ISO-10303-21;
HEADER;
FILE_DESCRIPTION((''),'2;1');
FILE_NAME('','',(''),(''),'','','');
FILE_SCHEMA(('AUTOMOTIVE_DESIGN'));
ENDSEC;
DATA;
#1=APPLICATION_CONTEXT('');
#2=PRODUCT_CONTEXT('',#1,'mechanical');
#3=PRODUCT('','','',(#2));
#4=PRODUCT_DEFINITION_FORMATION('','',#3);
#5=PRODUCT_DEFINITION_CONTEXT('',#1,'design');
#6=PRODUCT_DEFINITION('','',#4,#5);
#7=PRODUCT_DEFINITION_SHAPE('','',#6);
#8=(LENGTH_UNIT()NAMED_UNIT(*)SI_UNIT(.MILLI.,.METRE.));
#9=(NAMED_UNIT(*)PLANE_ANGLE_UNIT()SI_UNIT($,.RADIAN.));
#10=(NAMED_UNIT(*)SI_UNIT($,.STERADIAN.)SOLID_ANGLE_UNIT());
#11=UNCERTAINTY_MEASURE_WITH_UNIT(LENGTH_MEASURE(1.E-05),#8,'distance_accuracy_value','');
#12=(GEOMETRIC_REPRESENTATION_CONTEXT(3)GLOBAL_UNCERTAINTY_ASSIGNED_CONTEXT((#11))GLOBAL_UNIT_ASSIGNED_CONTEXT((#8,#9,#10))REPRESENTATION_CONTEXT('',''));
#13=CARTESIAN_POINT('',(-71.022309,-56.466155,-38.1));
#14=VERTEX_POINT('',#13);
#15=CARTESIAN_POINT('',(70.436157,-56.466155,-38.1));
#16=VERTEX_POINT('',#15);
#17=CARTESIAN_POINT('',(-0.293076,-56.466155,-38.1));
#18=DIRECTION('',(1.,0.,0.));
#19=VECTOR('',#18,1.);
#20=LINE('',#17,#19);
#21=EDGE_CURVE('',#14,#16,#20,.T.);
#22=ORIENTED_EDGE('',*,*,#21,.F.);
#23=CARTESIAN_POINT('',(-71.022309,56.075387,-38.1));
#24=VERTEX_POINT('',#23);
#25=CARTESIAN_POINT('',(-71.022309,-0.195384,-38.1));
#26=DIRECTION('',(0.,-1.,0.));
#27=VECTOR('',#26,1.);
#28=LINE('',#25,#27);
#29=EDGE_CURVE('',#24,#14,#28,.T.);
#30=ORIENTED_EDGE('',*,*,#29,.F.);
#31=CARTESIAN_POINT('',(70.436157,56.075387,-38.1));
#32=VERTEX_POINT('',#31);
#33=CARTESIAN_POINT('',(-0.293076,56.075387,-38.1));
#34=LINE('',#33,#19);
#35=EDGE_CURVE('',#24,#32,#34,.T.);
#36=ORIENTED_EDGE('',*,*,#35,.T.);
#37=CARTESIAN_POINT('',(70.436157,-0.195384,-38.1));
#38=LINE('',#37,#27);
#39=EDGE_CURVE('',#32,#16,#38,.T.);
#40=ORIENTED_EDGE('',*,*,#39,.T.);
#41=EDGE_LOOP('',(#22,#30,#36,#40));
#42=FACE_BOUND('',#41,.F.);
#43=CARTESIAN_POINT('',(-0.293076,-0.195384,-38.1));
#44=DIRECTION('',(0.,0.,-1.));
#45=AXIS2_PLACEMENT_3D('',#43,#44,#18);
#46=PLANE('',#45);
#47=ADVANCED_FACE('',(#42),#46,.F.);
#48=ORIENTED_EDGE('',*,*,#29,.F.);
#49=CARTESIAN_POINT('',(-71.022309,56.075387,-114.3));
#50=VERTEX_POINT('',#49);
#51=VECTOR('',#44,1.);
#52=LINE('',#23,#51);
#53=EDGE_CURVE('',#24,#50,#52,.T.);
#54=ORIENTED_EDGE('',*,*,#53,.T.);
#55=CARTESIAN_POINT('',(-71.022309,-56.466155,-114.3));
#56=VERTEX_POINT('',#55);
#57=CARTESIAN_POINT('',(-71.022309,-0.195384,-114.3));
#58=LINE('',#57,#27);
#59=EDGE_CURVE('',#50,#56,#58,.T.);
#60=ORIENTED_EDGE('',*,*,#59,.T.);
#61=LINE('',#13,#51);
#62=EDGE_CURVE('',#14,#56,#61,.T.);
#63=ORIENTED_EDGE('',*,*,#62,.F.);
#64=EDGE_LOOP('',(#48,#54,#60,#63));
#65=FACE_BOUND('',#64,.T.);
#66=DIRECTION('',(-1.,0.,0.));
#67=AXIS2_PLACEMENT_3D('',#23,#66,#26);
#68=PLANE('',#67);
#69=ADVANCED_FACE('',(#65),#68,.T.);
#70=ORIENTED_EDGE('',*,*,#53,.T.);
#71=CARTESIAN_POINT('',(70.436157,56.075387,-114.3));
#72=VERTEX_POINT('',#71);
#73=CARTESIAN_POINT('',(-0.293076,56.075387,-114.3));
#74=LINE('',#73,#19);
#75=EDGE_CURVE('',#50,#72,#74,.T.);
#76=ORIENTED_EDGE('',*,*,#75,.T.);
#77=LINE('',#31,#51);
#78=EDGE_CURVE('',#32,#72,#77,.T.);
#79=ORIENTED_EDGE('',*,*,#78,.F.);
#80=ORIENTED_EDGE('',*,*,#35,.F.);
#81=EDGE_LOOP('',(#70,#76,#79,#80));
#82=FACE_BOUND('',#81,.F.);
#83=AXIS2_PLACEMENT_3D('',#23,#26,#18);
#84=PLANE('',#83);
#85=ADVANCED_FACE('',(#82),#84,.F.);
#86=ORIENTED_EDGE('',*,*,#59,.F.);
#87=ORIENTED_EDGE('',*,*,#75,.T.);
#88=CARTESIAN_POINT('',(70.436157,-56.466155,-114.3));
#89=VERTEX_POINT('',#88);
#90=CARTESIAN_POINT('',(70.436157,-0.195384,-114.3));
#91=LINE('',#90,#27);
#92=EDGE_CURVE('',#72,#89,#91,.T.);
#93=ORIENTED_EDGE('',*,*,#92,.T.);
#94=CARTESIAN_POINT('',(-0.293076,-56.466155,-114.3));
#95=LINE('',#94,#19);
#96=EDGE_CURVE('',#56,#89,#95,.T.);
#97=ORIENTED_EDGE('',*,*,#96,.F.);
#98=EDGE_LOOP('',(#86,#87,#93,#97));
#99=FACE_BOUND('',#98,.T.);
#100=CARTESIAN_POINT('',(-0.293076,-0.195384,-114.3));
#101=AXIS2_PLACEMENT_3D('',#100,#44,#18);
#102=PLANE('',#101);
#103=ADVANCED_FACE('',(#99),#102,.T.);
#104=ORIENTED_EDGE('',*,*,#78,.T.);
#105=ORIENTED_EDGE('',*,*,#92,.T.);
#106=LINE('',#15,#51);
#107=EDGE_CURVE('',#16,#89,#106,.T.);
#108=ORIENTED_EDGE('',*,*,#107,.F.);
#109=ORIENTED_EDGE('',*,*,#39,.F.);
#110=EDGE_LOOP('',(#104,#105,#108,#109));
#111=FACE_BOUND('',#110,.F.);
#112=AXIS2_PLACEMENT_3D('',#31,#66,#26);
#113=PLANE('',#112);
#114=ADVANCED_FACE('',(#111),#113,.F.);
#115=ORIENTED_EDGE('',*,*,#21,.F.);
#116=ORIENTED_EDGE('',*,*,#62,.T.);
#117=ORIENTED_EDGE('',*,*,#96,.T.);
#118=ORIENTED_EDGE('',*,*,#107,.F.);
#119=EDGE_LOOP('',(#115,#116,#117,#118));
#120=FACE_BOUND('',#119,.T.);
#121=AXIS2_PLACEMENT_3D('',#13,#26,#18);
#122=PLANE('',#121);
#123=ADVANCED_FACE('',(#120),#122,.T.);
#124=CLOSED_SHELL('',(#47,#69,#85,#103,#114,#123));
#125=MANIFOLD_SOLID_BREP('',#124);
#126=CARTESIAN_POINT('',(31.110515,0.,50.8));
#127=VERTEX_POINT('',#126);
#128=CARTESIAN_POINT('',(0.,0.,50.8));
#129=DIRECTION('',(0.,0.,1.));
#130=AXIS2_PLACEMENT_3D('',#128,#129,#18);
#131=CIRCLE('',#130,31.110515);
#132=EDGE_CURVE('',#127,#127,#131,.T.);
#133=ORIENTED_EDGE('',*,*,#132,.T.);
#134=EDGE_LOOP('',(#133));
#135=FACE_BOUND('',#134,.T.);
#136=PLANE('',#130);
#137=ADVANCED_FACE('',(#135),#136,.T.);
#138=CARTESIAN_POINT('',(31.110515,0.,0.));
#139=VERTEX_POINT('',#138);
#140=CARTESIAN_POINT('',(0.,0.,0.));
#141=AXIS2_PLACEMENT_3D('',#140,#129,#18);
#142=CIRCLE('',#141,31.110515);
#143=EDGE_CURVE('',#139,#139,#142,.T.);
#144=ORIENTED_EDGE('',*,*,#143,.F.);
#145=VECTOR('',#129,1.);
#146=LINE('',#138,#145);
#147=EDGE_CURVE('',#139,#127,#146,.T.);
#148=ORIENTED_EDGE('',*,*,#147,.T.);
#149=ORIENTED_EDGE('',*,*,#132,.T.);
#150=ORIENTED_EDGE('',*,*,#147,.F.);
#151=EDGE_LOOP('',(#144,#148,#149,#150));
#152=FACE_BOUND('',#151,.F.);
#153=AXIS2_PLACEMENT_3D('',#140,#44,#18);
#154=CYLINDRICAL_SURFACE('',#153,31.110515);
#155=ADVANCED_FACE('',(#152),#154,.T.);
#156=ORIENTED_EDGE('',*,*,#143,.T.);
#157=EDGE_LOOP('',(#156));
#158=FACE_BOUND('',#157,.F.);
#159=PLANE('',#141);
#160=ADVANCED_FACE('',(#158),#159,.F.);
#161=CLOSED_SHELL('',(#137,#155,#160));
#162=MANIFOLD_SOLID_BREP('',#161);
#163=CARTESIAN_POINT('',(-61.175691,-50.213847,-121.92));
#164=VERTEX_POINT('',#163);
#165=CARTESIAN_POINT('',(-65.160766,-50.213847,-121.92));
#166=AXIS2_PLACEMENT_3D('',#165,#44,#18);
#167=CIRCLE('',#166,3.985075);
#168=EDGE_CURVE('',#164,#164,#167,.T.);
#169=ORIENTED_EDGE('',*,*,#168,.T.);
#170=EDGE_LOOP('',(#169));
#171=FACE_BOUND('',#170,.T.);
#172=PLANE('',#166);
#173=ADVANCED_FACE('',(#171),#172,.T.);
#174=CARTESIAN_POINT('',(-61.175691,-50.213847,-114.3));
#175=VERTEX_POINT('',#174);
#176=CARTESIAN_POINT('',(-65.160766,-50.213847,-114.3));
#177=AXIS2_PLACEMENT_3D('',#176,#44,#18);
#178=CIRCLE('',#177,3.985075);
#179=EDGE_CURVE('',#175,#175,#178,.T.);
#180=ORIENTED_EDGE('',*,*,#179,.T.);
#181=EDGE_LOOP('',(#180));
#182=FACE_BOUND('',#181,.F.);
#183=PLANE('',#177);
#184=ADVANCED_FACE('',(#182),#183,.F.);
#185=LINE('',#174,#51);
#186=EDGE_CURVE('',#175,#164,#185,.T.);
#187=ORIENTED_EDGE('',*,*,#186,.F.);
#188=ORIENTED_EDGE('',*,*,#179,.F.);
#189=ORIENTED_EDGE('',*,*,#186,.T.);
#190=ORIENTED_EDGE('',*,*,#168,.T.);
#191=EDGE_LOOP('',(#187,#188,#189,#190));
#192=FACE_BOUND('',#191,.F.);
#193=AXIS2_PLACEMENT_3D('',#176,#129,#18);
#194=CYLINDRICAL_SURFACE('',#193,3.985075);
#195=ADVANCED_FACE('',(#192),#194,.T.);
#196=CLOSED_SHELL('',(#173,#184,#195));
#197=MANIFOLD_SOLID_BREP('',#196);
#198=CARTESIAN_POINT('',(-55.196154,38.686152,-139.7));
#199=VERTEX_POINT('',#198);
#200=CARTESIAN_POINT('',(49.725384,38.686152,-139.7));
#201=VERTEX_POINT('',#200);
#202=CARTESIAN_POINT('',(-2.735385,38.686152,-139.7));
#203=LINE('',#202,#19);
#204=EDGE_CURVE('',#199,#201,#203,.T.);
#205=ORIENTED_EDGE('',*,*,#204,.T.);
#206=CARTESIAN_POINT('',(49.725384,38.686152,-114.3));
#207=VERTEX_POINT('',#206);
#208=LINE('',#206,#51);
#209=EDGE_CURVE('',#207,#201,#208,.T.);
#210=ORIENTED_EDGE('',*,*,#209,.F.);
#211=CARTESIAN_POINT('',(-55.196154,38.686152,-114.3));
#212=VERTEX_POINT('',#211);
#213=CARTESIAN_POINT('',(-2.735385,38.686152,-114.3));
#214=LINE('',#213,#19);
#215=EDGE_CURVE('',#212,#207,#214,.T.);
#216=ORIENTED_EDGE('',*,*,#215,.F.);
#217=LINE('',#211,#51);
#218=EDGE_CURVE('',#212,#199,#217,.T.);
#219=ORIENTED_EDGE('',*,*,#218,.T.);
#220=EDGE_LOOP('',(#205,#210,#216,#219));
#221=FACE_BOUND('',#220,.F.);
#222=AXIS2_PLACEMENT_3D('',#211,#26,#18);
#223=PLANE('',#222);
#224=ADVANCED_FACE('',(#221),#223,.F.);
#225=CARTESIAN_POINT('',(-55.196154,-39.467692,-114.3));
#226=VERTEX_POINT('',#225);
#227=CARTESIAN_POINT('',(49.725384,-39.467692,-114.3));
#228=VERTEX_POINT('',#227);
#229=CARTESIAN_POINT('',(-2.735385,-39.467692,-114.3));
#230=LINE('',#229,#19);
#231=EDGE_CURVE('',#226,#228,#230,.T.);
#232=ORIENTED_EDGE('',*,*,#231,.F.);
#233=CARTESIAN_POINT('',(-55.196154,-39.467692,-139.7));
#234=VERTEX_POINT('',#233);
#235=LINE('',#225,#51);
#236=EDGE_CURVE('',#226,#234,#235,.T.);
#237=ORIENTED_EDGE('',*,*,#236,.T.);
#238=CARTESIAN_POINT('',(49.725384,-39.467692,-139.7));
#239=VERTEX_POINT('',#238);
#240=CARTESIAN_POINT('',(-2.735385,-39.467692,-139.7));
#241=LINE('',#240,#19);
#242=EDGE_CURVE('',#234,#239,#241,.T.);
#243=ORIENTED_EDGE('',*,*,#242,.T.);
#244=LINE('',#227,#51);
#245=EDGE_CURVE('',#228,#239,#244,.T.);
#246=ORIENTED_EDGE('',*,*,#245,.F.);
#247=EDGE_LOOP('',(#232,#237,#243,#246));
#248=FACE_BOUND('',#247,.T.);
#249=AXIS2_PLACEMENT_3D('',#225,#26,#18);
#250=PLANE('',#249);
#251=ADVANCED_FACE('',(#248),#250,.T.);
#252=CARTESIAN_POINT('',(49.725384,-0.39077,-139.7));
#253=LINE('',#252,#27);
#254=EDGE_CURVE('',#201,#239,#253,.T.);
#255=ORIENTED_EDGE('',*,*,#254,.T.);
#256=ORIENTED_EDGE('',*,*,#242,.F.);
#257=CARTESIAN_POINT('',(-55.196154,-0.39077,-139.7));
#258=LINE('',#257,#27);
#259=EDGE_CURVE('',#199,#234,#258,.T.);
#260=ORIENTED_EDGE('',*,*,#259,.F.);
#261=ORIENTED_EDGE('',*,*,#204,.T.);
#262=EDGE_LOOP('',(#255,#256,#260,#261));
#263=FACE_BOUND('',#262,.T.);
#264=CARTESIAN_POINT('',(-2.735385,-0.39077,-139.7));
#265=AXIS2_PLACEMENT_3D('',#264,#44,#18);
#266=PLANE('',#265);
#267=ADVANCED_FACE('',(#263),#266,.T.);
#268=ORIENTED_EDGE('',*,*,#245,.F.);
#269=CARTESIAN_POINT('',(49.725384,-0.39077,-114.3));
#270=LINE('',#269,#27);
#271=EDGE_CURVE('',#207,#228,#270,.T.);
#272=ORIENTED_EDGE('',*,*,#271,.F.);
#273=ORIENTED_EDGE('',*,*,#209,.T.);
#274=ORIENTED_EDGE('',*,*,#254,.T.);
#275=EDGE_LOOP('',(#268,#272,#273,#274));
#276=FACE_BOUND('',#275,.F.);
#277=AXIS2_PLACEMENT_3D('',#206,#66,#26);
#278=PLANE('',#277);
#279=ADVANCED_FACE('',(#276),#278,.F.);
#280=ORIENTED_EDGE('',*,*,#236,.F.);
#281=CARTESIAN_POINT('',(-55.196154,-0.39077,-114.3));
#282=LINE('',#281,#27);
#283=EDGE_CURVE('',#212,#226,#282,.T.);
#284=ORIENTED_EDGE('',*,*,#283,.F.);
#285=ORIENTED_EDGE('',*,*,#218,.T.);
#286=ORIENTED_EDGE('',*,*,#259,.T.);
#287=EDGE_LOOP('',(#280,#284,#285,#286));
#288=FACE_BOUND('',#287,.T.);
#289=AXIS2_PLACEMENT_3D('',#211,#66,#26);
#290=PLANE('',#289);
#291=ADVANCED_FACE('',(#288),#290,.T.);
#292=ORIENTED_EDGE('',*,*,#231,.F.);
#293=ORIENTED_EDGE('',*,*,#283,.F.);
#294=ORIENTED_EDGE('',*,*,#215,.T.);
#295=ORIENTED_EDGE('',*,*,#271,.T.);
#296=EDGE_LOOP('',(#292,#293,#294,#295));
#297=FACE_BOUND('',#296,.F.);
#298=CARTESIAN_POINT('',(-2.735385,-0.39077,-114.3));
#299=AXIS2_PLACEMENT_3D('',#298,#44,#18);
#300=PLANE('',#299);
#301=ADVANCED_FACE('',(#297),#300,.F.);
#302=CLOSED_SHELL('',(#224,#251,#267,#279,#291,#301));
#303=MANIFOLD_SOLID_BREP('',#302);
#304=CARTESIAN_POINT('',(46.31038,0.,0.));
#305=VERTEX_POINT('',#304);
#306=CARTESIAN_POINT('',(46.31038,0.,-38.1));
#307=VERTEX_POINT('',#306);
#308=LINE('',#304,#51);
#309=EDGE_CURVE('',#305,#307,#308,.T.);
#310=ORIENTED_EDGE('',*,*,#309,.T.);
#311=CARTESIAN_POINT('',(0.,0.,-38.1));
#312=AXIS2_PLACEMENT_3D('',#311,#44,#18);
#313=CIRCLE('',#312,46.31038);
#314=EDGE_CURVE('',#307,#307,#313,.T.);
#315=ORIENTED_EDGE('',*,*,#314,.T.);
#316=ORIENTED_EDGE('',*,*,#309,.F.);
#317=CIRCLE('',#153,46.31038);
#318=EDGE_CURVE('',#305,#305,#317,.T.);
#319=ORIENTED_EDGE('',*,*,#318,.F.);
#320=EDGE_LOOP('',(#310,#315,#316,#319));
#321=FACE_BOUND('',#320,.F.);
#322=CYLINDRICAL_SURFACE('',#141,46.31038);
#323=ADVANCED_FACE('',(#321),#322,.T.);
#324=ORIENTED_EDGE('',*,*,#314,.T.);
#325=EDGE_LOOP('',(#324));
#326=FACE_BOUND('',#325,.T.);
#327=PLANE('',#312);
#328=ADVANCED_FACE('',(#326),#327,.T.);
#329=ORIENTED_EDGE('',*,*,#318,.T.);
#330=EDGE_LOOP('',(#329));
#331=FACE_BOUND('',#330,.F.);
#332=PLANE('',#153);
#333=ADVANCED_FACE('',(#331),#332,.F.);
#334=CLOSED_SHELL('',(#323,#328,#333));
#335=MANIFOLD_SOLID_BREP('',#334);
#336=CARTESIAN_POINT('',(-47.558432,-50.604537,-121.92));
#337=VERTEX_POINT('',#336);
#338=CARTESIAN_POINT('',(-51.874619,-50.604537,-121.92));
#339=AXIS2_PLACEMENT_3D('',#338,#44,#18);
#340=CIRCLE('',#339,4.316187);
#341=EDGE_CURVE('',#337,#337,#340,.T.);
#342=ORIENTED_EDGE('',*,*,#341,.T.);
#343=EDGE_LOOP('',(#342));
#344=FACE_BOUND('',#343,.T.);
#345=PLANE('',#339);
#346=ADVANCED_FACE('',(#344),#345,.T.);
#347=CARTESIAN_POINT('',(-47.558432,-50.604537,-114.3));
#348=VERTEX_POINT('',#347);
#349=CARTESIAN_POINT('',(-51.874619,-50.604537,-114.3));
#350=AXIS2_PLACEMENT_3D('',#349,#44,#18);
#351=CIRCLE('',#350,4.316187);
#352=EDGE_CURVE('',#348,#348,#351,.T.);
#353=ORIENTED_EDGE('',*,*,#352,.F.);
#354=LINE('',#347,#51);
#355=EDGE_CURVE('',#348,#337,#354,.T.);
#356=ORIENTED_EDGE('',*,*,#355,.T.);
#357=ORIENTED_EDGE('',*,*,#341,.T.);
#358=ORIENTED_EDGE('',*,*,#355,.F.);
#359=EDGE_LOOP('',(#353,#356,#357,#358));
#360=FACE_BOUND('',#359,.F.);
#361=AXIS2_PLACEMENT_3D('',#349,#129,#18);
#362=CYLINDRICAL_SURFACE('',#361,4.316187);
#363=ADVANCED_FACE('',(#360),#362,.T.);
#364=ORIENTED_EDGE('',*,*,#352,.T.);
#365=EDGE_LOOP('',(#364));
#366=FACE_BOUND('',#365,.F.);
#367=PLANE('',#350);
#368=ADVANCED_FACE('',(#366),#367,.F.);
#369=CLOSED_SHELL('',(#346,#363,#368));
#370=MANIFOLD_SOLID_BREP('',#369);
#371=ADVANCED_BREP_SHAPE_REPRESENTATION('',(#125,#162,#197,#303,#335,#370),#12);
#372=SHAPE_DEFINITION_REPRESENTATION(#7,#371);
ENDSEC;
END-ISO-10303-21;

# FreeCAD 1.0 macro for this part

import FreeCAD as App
import Part
import Sketcher
from FreeCAD import Vector
Q = App.Units.Quantity


def add_polygon(sketch, points):
    """Adds a closed chain of lines whose ends are joined by coincident constraints."""
    first, n = sketch.GeometryCount, len(points)
    for a, b in zip(points, points[1:] + points[:1]):
        sketch.addGeometry(Part.LineSegment(App.Vector(*a, 0), App.Vector(*b, 0)), False)
    for i in range(n):
        sketch.addConstraint(Sketcher.Constraint("Coincident", first + i, 2, first + (i + 1) % n, 1))

doc = App.newDocument("Part")
body = doc.addObject("PartDesign::Body", "Body")

sketch1 = body.newObject("Sketcher::SketchObject", "Sketch")
sketch1.AttachmentSupport = (doc.getObject("XY_Plane"), [""])
sketch1.MapMode = "FlatFace"
sketch1.addGeometry(Part.Circle(Vector(0, 0, 0), Vector(0, 0, 1), 31.110515), False)
sketch1.addConstraint(Sketcher.Constraint("Coincident", 0, 3, -1, 1))
sketch1.addConstraint(Sketcher.Constraint("Diameter", 0, 62.22103))
pad1 = body.newObject("PartDesign::Pad", "Pad")
pad1.Profile = sketch1
pad1.Length = Q("2 in")
body2 = doc.addObject("PartDesign::Body", "Body001")

sketch2 = body2.newObject("Sketcher::SketchObject", "Sketch001")
sketch2.AttachmentSupport = (doc.getObject("XY_Plane001"), [""])
sketch2.MapMode = "FlatFace"
sketch2.addGeometry(Part.Circle(Vector(0, 0, 0), Vector(0, 0, 1), 46.31038), False)
sketch2.addConstraint(Sketcher.Constraint("Coincident", 0, 3, -1, 1))
sketch2.addConstraint(Sketcher.Constraint("Diameter", 0, 92.62076))
pad2 = body2.newObject("PartDesign::Pad", "Pad001")
pad2.Profile = sketch2
pad2.Length = Q("1.5 in")
pad2.Reversed = True
body3 = doc.addObject("PartDesign::Body", "Body002")

sketch3 = body3.newObject("Sketcher::SketchObject", "Sketch002")
sketch3.AttachmentSupport = (doc.getObject("XY_Plane002"), [""])
sketch3.MapMode = "FlatFace"
sketch3.AttachmentOffset = App.Placement(Vector(0, 0, -1.5 * 25.4), App.Rotation())
add_polygon(sketch3, [(-71.022309, -56.466155), (-71.022309, 56.075387), (70.436157, 56.075387), (70.436157, -56.466155)])
sketch3.addConstraint(Sketcher.Constraint("Vertical", 0))
sketch3.addConstraint(Sketcher.Constraint("Horizontal", 1))
sketch3.addConstraint(Sketcher.Constraint("Vertical", 2))
sketch3.addConstraint(Sketcher.Constraint("Horizontal", 3))
sketch3.addConstraint(Sketcher.Constraint("DistanceY", 0, 1, 0, 2, 112.541542))
sketch3.addConstraint(Sketcher.Constraint("DistanceX", 1, 1, 1, 2, 141.458466))
sketch3.addConstraint(Sketcher.Constraint("DistanceX", 0, 2, -1, 1, 71.022309))
sketch3.addConstraint(Sketcher.Constraint("DistanceY", -1, 1, 0, 2, 56.075387))
pad3 = body3.newObject("PartDesign::Pad", "Pad002")
pad3.Profile = sketch3
pad3.Length = Q("3 in")
pad3.Reversed = True
body4 = doc.addObject("PartDesign::Body", "Body003")

sketch4 = body4.newObject("Sketcher::SketchObject", "Sketch003")
sketch4.AttachmentSupport = (doc.getObject("XY_Plane003"), [""])
sketch4.MapMode = "FlatFace"
sketch4.AttachmentOffset = App.Placement(Vector(0, 0, -4.5 * 25.4), App.Rotation())
sketch4.addGeometry(Part.Circle(Vector(-65.160766, -50.213847, 0), Vector(0, 0, 1), 3.985075), False)
sketch4.addConstraint(Sketcher.Constraint("Diameter", 0, 7.97015))
sketch4.addConstraint(Sketcher.Constraint("DistanceX", 0, 3, -1, 1, 65.160766))
sketch4.addConstraint(Sketcher.Constraint("DistanceY", 0, 3, -1, 1, 50.213847))
pad4 = body4.newObject("PartDesign::Pad", "Pad003")
pad4.Profile = sketch4
pad4.Length = Q("0.3 in")
pad4.Reversed = True
body5 = doc.addObject("PartDesign::Body", "Body004")

sketch5 = body5.newObject("Sketcher::SketchObject", "Sketch004")
sketch5.AttachmentSupport = (doc.getObject("XY_Plane004"), [""])
sketch5.MapMode = "FlatFace"
sketch5.AttachmentOffset = App.Placement(Vector(0, 0, -4.5 * 25.4), App.Rotation())
sketch5.addGeometry(Part.Circle(Vector(-51.874619, -50.604537, 0), Vector(0, 0, 1), 4.316187), False)
sketch5.addConstraint(Sketcher.Constraint("Diameter", 0, 8.632374))
sketch5.addConstraint(Sketcher.Constraint("DistanceX", 0, 3, -1, 1, 51.874619))
sketch5.addConstraint(Sketcher.Constraint("DistanceY", 0, 3, -1, 1, 50.604537))
pad5 = body5.newObject("PartDesign::Pad", "Pad004")
pad5.Profile = sketch5
pad5.Length = Q("0.3 in")
pad5.Reversed = True
body6 = doc.addObject("PartDesign::Body", "Body005")

sketch6 = body6.newObject("Sketcher::SketchObject", "Sketch005")
sketch6.AttachmentSupport = (doc.getObject("XY_Plane005"), [""])
sketch6.MapMode = "FlatFace"
sketch6.AttachmentOffset = App.Placement(Vector(0, 0, -4.5 * 25.4), App.Rotation())
add_polygon(sketch6, [(-55.196154, -39.467692), (-55.196154, 38.686152), (49.725384, 38.686152), (49.725384, -39.467692)])
sketch6.addConstraint(Sketcher.Constraint("Vertical", 0))
sketch6.addConstraint(Sketcher.Constraint("Horizontal", 1))
sketch6.addConstraint(Sketcher.Constraint("Vertical", 2))
sketch6.addConstraint(Sketcher.Constraint("Horizontal", 3))
sketch6.addConstraint(Sketcher.Constraint("DistanceX", 1, 1, 1, 2, 104.921539))
sketch6.addConstraint(Sketcher.Constraint("DistanceY", 0, 1, 0, 2, 78.153845))
sketch6.addConstraint(Sketcher.Constraint("DistanceX", 0, 2, -1, 1, 55.196154))
sketch6.addConstraint(Sketcher.Constraint("DistanceY", -1, 1, 0, 2, 38.686152))
pad6 = body6.newObject("PartDesign::Pad", "Pad005")
pad6.Profile = sketch6
pad6.Length = Q("1 in")
pad6.Reversed = True

doc.recompute()
